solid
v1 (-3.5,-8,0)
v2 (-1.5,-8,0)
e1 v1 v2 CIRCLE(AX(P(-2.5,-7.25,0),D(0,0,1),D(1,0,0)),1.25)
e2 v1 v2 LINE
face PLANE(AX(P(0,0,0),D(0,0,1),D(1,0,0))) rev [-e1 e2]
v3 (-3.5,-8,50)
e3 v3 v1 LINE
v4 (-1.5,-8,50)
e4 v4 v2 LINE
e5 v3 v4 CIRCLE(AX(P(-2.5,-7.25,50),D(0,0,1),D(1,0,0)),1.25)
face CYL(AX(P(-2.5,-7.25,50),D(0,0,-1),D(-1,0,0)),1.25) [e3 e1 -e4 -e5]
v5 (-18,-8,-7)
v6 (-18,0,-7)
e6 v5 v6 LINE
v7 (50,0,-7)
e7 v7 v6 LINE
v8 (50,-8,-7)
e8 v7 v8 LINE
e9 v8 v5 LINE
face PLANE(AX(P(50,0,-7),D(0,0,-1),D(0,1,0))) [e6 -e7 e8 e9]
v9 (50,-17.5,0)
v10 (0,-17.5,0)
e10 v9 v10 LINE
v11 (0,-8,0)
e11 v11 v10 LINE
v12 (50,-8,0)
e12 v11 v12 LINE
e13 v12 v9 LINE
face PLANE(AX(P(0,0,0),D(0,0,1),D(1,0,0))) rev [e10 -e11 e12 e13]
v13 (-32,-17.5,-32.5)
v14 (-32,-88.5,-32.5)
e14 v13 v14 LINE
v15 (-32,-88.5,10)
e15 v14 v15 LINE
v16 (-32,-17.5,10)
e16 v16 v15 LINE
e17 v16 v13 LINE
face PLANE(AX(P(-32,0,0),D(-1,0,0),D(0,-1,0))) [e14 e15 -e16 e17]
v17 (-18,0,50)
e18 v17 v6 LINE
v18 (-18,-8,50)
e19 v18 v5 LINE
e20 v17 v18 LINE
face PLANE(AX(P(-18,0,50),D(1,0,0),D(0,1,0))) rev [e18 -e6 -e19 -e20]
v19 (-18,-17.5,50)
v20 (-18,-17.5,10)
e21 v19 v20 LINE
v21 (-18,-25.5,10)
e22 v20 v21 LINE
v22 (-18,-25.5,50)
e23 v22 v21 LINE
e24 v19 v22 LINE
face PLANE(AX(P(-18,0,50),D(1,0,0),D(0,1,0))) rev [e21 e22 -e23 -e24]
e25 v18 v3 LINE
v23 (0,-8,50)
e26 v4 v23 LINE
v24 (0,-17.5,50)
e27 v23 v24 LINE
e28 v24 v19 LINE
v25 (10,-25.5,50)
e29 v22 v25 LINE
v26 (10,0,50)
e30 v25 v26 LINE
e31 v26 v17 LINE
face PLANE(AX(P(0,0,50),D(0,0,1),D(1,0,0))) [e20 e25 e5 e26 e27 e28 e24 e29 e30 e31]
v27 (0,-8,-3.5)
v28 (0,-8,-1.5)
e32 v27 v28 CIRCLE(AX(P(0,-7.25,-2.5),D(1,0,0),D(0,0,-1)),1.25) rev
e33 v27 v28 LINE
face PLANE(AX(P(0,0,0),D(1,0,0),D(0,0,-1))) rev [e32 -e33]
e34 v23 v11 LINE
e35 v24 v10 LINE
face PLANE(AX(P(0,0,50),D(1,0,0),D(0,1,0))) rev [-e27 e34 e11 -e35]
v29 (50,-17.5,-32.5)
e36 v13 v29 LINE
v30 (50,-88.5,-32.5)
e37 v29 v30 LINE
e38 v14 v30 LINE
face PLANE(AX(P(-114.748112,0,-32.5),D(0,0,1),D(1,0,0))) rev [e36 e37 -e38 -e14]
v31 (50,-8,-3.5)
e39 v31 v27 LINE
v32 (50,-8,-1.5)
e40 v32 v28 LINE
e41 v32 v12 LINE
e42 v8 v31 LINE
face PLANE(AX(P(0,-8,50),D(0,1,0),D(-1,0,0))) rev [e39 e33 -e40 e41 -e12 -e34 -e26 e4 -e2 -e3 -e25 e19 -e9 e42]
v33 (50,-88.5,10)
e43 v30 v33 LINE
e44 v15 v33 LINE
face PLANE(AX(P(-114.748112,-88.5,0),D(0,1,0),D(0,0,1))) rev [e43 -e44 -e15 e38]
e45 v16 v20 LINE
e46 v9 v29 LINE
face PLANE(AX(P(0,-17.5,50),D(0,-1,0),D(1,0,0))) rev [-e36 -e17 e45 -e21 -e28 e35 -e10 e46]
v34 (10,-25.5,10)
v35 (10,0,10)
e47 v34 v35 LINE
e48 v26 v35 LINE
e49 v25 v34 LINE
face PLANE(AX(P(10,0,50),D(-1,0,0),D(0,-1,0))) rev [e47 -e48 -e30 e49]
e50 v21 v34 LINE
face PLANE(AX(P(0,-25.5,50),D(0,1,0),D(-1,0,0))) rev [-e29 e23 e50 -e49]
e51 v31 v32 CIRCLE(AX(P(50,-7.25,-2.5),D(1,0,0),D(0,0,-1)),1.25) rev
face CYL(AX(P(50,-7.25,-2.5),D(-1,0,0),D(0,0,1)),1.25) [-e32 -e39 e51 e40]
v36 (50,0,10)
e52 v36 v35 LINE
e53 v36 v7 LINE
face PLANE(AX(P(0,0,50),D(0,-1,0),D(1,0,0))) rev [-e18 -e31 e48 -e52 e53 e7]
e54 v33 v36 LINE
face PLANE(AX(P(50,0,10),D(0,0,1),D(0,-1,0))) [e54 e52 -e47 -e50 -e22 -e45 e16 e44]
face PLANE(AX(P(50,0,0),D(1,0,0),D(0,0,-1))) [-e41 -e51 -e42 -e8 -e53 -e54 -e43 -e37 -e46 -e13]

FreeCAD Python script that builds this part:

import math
import FreeCAD as App
import Part
import Sketcher


def add_polygon(sketch, points):
    """Adds a closed chain of lines whose ends are joined by coincident constraints."""
    first, n = sketch.GeometryCount, len(points)
    for a, b in zip(points, points[1:] + points[:1]):
        sketch.addGeometry(Part.LineSegment(App.Vector(*a, 0), App.Vector(*b, 0)), False)
    for i in range(n):
        sketch.addConstraint(Sketcher.Constraint("Coincident", first + i, 2, first + (i + 1) % n, 1))

doc = App.newDocument("Part")
body = doc.addObject("PartDesign::Body", "Body")

# Sketch on XY plane
sketch1 = body.newObject("Sketcher::SketchObject", "Sketch")
sketch1.AttachmentSupport = (doc.getObject("XY_Plane"), [""])
sketch1.MapMode = "FlatFace"
sketch1.addGeometry(Part.ArcOfCircle(Part.Circle(App.Vector(-2.5, -7.2, 0), App.Vector(0, 0, 1), 1.2), math.radians(-143), math.radians(-37)), False)
sketch1.addGeometry(Part.LineSegment(App.Vector(-1.5, -8, 0), App.Vector(0, -8, 0)), False)
sketch1.addGeometry(Part.LineSegment(App.Vector(0, -8, 0), App.Vector(0, -17.5, 0)), False)
sketch1.addGeometry(Part.LineSegment(App.Vector(0, -17.5, 0), App.Vector(-18, -17.5, 0)), False)
sketch1.addGeometry(Part.LineSegment(App.Vector(-18, -17.5, 0), App.Vector(-18, -25.5, 0)), False)
sketch1.addGeometry(Part.LineSegment(App.Vector(-18, -25.5, 0), App.Vector(10, -25.5, 0)), False)
sketch1.addGeometry(Part.LineSegment(App.Vector(10, -25.5, 0), App.Vector(10, 0, 0)), False)
sketch1.addGeometry(Part.LineSegment(App.Vector(10, 0, 0), App.Vector(-18, 0, 0)), False)
sketch1.addGeometry(Part.LineSegment(App.Vector(-18, 0, 0), App.Vector(-18, -8, 0)), False)
sketch1.addGeometry(Part.LineSegment(App.Vector(-18, -8, 0), App.Vector(-3.5, -8, 0)), False)
sketch1.addConstraint(Sketcher.Constraint("Coincident", 0, 2, 1, 1))
sketch1.addConstraint(Sketcher.Constraint("Coincident", 1, 2, 2, 1))
sketch1.addConstraint(Sketcher.Constraint("Coincident", 2, 2, 3, 1))
sketch1.addConstraint(Sketcher.Constraint("Coincident", 3, 2, 4, 1))
sketch1.addConstraint(Sketcher.Constraint("Coincident", 4, 2, 5, 1))
sketch1.addConstraint(Sketcher.Constraint("Coincident", 5, 2, 6, 1))
sketch1.addConstraint(Sketcher.Constraint("Coincident", 6, 2, 7, 1))
sketch1.addConstraint(Sketcher.Constraint("Coincident", 7, 2, 8, 1))
sketch1.addConstraint(Sketcher.Constraint("Coincident", 8, 2, 9, 1))
sketch1.addConstraint(Sketcher.Constraint("Coincident", 9, 2, 0, 1))
sketch1.addConstraint(Sketcher.Constraint("Horizontal", 1))
sketch1.addConstraint(Sketcher.Constraint("Vertical", 2))
sketch1.addConstraint(Sketcher.Constraint("Horizontal", 3))
sketch1.addConstraint(Sketcher.Constraint("Vertical", 4))
sketch1.addConstraint(Sketcher.Constraint("Horizontal", 5))
sketch1.addConstraint(Sketcher.Constraint("Vertical", 6))
sketch1.addConstraint(Sketcher.Constraint("Horizontal", 7))
sketch1.addConstraint(Sketcher.Constraint("Vertical", 8))
sketch1.addConstraint(Sketcher.Constraint("Horizontal", 9))
sketch1.addConstraint(Sketcher.Constraint("PointOnObject", 1, 2, -2))
sketch1.addConstraint(Sketcher.Constraint("PointOnObject", 6, 2, -1))
sketch1.addConstraint(Sketcher.Constraint("Horizontal", 1, 2, 8, 2))
sketch1.addConstraint(Sketcher.Constraint("Vertical", 4, 2, 7, 2))
sketch1.addConstraint(Sketcher.Constraint("Equal", 4, 8))
sketch1.addConstraint(Sketcher.Constraint("DistanceX", 3, 2, 3, 1, 18.0))
sketch1.addConstraint(Sketcher.Constraint("DistanceX", 5, 1, 5, 2, 28.0))
sketch1.addConstraint(Sketcher.Constraint("DistanceY", 4, 2, 4, 1, 8.0))
sketch1.addConstraint(Sketcher.Constraint("Radius", 0, 1.25))
sketch1.addConstraint(Sketcher.Constraint("DistanceX", 1, 1, 1, 2, 1.5))
sketch1.addConstraint(Sketcher.Constraint("DistanceX", 9, 1, 9, 2, 14.5))
sketch1.addConstraint(Sketcher.Constraint("DistanceY", 2, 2, 2, 1, 9.5))
pad1 = body.newObject("PartDesign::Pad", "Pad")
pad1.Profile = sketch1
pad1.Length = 50

# Sketch on YZ plane
sketch2 = body.newObject("Sketcher::SketchObject", "Sketch001")
sketch2.AttachmentSupport = (doc.getObject("YZ_Plane"), [""])
sketch2.MapMode = "FlatFace"
sketch2.addGeometry(Part.LineSegment(App.Vector(0, -7, 0), App.Vector(0, 10, 0)), False)
sketch2.addGeometry(Part.LineSegment(App.Vector(0, 10, 0), App.Vector(-25.5, 10, 0)), False)
sketch2.addGeometry(Part.LineSegment(App.Vector(-25.5, 10, 0), App.Vector(-25.5, -7, 0)), False)
sketch2.addGeometry(Part.LineSegment(App.Vector(-25.5, -7, 0), App.Vector(-17.5, -7, 0)), False)
sketch2.addGeometry(Part.LineSegment(App.Vector(-17.5, -7, 0), App.Vector(-17.5, 0, 0)), False)
sketch2.addGeometry(Part.LineSegment(App.Vector(-17.5, 0, 0), App.Vector(-8, 0, 0)), False)
sketch2.addGeometry(Part.LineSegment(App.Vector(-8, 0, 0), App.Vector(-8, -1.5, 0)), False)
sketch2.addGeometry(Part.ArcOfCircle(Part.Circle(App.Vector(-7.2, -2.5, 0), App.Vector(0, 0, 1), 1.2), math.radians(127), math.radians(233)), False)
sketch2.addGeometry(Part.LineSegment(App.Vector(-8, -3.5, 0), App.Vector(-8, -7, 0)), False)
sketch2.addGeometry(Part.LineSegment(App.Vector(-8, -7, 0), App.Vector(0, -7, 0)), False)
sketch2.addConstraint(Sketcher.Constraint("Coincident", 0, 2, 1, 1))
sketch2.addConstraint(Sketcher.Constraint("Coincident", 1, 2, 2, 1))
sketch2.addConstraint(Sketcher.Constraint("Coincident", 2, 2, 3, 1))
sketch2.addConstraint(Sketcher.Constraint("Coincident", 3, 2, 4, 1))
sketch2.addConstraint(Sketcher.Constraint("Coincident", 4, 2, 5, 1))
sketch2.addConstraint(Sketcher.Constraint("Coincident", 5, 2, 6, 1))
sketch2.addConstraint(Sketcher.Constraint("Coincident", 6, 2, 7, 1))
sketch2.addConstraint(Sketcher.Constraint("Coincident", 7, 2, 8, 1))
sketch2.addConstraint(Sketcher.Constraint("Coincident", 8, 2, 9, 1))
sketch2.addConstraint(Sketcher.Constraint("Coincident", 9, 2, 0, 1))
sketch2.addConstraint(Sketcher.Constraint("Vertical", 0))
sketch2.addConstraint(Sketcher.Constraint("Horizontal", 1))
sketch2.addConstraint(Sketcher.Constraint("Vertical", 2))
sketch2.addConstraint(Sketcher.Constraint("Horizontal", 3))
sketch2.addConstraint(Sketcher.Constraint("Vertical", 4))
sketch2.addConstraint(Sketcher.Constraint("Horizontal", 5))
sketch2.addConstraint(Sketcher.Constraint("Vertical", 6))
sketch2.addConstraint(Sketcher.Constraint("Vertical", 8))
sketch2.addConstraint(Sketcher.Constraint("Horizontal", 9))
sketch2.addConstraint(Sketcher.Constraint("PointOnObject", 0, 2, -2))
sketch2.addConstraint(Sketcher.Constraint("PointOnObject", 4, 2, -1))
sketch2.addConstraint(Sketcher.Constraint("Horizontal", 3, 2, 8, 2))
sketch2.addConstraint(Sketcher.Constraint("Vertical", 6, 2, 7, 2))
sketch2.addConstraint(Sketcher.Constraint("Equal", 3, 9))
sketch2.addConstraint(Sketcher.Constraint("DistanceX", 3, 1, 3, 2, 8.0))
sketch2.addConstraint(Sketcher.Constraint("DistanceY", 0, 1, 0, 2, 17.0))
sketch2.addConstraint(Sketcher.Constraint("DistanceY", 4, 1, 4, 2, 7.0))
sketch2.addConstraint(Sketcher.Constraint("Radius", 7, 1.25))
sketch2.addConstraint(Sketcher.Constraint("DistanceX", 1, 2, 1, 1, 25.5))
sketch2.addConstraint(Sketcher.Constraint("DistanceY", 6, 2, 6, 1, 1.5))
sketch2.addConstraint(Sketcher.Constraint("DistanceY", 8, 2, 8, 1, 3.5))
pad2 = body.newObject("PartDesign::Pad", "Pad001")
pad2.Profile = sketch2
pad2.Length = 50

# Sketch on YZ plane
sketch3 = body.newObject("Sketcher::SketchObject", "Sketch002")
sketch3.AttachmentSupport = (doc.getObject("YZ_Plane"), [""])
sketch3.MapMode = "FlatFace"
add_polygon(sketch3, [(0, -7), (0, 0), (-8, 0), (-8, -7)])  # lines 0-3
add_polygon(sketch3, [(-18, 0), (-26, 0), (-26, -7), (-18, -7)])  # lines 4-7
sketch3.addConstraint(Sketcher.Constraint("Vertical", 0))
sketch3.addConstraint(Sketcher.Constraint("Horizontal", 1))
sketch3.addConstraint(Sketcher.Constraint("Vertical", 2))
sketch3.addConstraint(Sketcher.Constraint("Horizontal", 3))
sketch3.addConstraint(Sketcher.Constraint("Horizontal", 4))
sketch3.addConstraint(Sketcher.Constraint("Vertical", 5))
sketch3.addConstraint(Sketcher.Constraint("Horizontal", 6))
sketch3.addConstraint(Sketcher.Constraint("Vertical", 7))
sketch3.addConstraint(Sketcher.Constraint("Coincident", 0, 2, -1, 1))
sketch3.addConstraint(Sketcher.Constraint("PointOnObject", 4, 2, -1))
sketch3.addConstraint(Sketcher.Constraint("Horizontal", 3, 2, 5, 2))
sketch3.addConstraint(Sketcher.Constraint("Equal", 3, 4))
sketch3.addConstraint(Sketcher.Constraint("DistanceX", 1, 2, 1, 1, 8.0))
sketch3.addConstraint(Sketcher.Constraint("DistanceY", 0, 1, 0, 2, 7.0))
sketch3.addConstraint(Sketcher.Constraint("DistanceX", 4, 2, -1, 1, 25.5))
pad3 = body.newObject("PartDesign::Pad", "Pad002")
pad3.Profile = sketch3
pad3.Length = 18
pad3.Reversed = True

# Sketch on YZ plane
sketch4 = body.newObject("Sketcher::SketchObject", "Sketch003")
sketch4.AttachmentSupport = (doc.getObject("YZ_Plane"), [""])
sketch4.MapMode = "FlatFace"
sketch4.AttachmentOffset = App.Placement(App.Vector(0, 0, 50), App.Rotation())
add_polygon(sketch4, [(-18, -32), (-18, 10), (-88, 10), (-88, -32)])  # lines 0-3
sketch4.addConstraint(Sketcher.Constraint("Vertical", 0))
sketch4.addConstraint(Sketcher.Constraint("Horizontal", 1))
sketch4.addConstraint(Sketcher.Constraint("Vertical", 2))
sketch4.addConstraint(Sketcher.Constraint("Horizontal", 3))
sketch4.addConstraint(Sketcher.Constraint("DistanceX", 1, 2, 1, 1, 71.0))
sketch4.addConstraint(Sketcher.Constraint("DistanceY", 0, 1, 0, 2, 42.5))
sketch4.addConstraint(Sketcher.Constraint("DistanceY", -1, 1, 0, 2, 10.0))
sketch4.addConstraint(Sketcher.Constraint("DistanceX", 0, 2, -1, 1, 17.5))
pad4 = body.newObject("PartDesign::Pad", "Pad003")
pad4.Profile = sketch4
pad4.Length = 82
pad4.Reversed = True

doc.recompute()
